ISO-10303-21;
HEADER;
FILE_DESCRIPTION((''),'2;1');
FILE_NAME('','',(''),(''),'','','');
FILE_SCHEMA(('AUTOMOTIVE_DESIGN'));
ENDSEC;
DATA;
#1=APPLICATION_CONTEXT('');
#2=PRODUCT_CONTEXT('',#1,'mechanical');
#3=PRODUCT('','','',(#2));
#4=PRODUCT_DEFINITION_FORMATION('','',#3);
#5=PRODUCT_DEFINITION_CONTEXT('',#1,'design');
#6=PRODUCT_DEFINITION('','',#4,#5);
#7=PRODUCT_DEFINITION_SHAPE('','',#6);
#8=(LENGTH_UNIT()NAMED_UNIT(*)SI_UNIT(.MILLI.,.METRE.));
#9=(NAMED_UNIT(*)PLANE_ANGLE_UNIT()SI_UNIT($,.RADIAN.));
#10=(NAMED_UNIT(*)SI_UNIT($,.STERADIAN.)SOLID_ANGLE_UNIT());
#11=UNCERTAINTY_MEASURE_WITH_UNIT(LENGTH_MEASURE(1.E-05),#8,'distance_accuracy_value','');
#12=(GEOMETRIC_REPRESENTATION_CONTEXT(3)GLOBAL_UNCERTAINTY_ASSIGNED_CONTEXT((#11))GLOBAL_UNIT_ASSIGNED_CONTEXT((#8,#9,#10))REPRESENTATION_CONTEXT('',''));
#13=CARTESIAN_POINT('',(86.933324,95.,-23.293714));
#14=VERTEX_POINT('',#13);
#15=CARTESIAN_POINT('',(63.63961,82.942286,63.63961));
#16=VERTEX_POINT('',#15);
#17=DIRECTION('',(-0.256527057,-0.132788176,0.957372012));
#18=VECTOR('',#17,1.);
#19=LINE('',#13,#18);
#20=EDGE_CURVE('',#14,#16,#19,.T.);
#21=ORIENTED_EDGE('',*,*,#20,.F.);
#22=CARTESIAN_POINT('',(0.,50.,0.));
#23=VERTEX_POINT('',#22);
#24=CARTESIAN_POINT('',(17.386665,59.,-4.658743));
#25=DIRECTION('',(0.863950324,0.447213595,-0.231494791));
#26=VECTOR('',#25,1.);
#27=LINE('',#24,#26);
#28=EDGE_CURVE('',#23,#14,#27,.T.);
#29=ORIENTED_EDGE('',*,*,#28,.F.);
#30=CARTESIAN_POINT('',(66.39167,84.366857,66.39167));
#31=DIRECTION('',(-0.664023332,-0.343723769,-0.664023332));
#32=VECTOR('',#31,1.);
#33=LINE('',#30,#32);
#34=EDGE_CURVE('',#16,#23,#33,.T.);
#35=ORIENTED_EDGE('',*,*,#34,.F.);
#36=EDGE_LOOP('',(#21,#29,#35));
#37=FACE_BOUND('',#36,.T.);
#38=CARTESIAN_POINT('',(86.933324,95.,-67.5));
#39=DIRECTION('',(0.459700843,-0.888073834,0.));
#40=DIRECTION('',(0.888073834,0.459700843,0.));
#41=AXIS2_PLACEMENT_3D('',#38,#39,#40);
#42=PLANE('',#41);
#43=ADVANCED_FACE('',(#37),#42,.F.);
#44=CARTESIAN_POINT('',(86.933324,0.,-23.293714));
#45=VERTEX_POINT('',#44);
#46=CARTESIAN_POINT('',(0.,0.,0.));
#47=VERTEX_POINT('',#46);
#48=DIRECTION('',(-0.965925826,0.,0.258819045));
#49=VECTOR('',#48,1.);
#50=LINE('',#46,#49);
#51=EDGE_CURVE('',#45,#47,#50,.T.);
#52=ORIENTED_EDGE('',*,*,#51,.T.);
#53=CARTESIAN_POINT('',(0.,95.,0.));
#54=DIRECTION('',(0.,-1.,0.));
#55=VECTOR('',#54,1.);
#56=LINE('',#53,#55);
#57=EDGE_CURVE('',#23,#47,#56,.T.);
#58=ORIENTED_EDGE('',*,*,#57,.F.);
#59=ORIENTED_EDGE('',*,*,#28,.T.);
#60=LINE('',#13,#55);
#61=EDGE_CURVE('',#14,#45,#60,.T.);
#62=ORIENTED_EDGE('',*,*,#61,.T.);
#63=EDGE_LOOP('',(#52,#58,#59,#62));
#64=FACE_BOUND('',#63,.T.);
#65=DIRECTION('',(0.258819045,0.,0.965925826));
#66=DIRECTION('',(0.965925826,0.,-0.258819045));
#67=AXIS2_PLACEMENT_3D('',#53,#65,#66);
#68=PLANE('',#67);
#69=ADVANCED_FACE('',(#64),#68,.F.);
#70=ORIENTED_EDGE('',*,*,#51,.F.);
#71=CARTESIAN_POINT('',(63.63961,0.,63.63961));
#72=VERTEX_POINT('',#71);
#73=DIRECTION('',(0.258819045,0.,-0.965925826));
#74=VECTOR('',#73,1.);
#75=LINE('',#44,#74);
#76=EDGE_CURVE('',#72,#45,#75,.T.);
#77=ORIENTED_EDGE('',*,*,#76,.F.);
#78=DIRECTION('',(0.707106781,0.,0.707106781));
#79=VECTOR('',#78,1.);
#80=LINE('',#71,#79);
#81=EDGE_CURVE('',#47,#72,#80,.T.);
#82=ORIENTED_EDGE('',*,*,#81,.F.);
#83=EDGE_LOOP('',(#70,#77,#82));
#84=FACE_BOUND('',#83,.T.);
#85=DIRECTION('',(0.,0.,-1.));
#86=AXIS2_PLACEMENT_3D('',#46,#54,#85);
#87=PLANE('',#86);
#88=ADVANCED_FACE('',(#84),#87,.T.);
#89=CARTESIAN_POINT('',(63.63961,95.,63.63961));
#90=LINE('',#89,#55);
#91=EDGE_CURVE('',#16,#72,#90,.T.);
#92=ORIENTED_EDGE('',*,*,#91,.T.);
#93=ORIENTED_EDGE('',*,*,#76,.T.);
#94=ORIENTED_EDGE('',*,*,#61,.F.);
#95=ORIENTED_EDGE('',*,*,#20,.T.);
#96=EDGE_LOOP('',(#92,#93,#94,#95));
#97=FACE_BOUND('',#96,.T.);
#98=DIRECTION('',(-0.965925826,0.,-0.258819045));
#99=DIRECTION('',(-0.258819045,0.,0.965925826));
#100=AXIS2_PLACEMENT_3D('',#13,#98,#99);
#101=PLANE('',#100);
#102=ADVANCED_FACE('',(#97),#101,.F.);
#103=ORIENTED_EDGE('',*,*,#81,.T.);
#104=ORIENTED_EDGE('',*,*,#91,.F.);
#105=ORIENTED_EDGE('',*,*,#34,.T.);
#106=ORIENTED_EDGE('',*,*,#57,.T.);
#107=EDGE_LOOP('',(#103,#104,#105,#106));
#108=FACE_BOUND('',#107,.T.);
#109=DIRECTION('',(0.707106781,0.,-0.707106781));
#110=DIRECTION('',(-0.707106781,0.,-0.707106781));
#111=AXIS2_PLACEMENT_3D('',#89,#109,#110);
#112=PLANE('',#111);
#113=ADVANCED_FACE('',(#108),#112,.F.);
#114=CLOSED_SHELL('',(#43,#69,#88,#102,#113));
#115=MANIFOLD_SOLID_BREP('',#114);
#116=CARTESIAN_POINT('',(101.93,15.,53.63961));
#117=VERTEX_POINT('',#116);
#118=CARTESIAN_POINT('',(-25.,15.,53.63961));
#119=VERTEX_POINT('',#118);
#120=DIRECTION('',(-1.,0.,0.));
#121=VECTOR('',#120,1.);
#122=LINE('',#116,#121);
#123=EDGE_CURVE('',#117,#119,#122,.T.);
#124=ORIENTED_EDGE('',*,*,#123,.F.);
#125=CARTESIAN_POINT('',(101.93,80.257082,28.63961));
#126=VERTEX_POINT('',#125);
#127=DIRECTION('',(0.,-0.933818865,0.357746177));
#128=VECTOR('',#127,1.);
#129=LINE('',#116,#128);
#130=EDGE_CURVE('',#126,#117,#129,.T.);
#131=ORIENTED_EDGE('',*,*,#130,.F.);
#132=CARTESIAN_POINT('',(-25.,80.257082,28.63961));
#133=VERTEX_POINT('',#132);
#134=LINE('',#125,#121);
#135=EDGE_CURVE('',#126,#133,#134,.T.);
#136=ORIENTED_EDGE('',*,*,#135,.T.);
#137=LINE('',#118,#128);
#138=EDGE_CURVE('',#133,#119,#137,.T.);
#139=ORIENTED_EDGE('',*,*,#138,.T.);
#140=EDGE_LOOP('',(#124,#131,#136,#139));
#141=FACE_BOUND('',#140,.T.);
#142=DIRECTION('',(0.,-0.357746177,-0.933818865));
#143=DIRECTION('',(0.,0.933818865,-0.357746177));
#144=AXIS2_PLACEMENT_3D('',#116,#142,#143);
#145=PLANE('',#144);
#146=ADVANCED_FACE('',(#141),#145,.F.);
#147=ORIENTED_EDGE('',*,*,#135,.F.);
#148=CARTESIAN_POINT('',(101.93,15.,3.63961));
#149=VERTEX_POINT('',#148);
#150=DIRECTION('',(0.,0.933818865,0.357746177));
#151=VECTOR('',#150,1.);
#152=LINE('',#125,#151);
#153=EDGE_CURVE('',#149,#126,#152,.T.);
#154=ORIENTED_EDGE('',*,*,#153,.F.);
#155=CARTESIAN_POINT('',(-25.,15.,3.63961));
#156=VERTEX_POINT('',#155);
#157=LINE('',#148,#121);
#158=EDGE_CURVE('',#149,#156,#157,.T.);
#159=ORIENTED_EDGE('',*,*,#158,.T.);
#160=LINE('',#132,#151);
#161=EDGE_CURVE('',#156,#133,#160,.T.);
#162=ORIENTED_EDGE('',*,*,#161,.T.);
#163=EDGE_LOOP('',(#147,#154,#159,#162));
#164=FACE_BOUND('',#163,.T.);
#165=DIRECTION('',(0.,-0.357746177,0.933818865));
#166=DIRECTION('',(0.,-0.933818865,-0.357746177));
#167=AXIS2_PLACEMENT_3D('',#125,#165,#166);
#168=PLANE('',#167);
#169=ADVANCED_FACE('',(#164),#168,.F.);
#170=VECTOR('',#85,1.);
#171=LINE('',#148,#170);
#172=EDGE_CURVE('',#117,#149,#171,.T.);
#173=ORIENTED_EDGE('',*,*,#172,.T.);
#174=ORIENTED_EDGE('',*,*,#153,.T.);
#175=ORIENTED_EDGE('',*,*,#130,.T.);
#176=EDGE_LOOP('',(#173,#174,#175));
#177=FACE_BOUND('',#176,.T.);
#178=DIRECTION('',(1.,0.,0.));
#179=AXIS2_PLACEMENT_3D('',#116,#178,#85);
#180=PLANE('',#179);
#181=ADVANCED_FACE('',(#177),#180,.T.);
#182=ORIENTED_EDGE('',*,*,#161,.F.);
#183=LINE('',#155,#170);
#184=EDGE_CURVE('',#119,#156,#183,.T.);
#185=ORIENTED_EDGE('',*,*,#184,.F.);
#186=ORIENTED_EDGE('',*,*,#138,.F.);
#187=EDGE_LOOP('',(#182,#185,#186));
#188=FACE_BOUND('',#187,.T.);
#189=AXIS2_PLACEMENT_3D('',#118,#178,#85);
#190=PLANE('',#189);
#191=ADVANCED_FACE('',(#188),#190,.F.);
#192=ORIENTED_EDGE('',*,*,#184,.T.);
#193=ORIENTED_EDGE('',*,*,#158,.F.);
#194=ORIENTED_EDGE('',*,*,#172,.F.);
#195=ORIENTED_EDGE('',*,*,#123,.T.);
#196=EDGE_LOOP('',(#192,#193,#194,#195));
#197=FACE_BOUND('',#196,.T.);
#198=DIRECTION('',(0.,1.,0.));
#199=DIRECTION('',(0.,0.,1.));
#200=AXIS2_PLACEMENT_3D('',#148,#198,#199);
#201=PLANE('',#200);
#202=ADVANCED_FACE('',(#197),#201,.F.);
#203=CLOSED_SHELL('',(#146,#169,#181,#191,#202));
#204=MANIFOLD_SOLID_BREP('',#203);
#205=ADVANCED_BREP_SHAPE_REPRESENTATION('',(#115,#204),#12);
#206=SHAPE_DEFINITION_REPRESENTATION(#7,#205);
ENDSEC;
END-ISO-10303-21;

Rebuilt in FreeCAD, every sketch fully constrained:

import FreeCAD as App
import Part
import Sketcher
from FreeCAD import Vector
Q = App.Units.Quantity


def add_polygon(sketch, points):
    """Adds a closed chain of lines whose ends are joined by coincident constraints."""
    first, n = sketch.GeometryCount, len(points)
    for a, b in zip(points, points[1:] + points[:1]):
        sketch.addGeometry(Part.LineSegment(App.Vector(*a, 0), App.Vector(*b, 0)), False)
    for i in range(n):
        sketch.addConstraint(Sketcher.Constraint("Coincident", first + i, 2, first + (i + 1) % n, 1))

doc = App.newDocument("Part")
params = doc.addObject("Spreadsheet::Sheet", "Params")
for row, (alias, value) in enumerate([
    ("sketch1_length", "90 mm"),
    ("pad1_length", "95 mm"),
    ("sketch2_height", "45 mm"),
    ("pocket1_length", "135 mm"),
    ("sketch3_height", "50 mm"),
    ("pad2_length", "101.93 mm"),
    ("pad2_length2", "25 mm"),
], start=1):
    params.set(f"A{row}", alias)
    params.set(f"B{row}", "=" + value)
    params.setAlias(f"B{row}", alias)

body = doc.addObject("PartDesign::Body", "Body")

# Sketch on XZ plane
sketch1 = body.newObject("Sketcher::SketchObject", "Sketch")
sketch1.AttachmentSupport = (doc.getObject("XZ_Plane"), [""])
sketch1.MapMode = "FlatFace"
add_polygon(sketch1, [(86.933324, -23.293714), (0, 0), (63.63961, 63.63961)])  # lines 0-2
sketch1.addConstraint([
    Sketcher.Constraint("Coincident", 0, 2, -1, 1),
    Sketcher.Constraint("Equal", 0, 1),
    Sketcher.Constraint("Equal", 1, 2),
    Sketcher.Constraint("Angle", 0, Q("165 deg")),
    Sketcher.Constraint("Distance", 0, Q("90 mm")),
])
sketch1.setExpression("Constraints[7]", "Params.sketch1_length")
pad1 = body.newObject("PartDesign::Pad", "Pad")
pad1.Profile = sketch1
pad1.setExpression("Length", "Params.pad1_length")
pad1.Reversed = True

# Sketch on XY plane
sketch2 = body.newObject("Sketcher::SketchObject", "Sketch001")
sketch2.AttachmentSupport = (doc.getObject("XY_Plane"), [""])
sketch2.MapMode = "FlatFace"
add_polygon(sketch2, [(0, 50), (86.933324, 95), (0, 95)])  # lines 0-2
sketch2.addConstraint([
    Sketcher.Constraint("Horizontal", 1),
    Sketcher.Constraint("Vertical", 2),
    Sketcher.Constraint("PointOnObject", 1, 2, -2),
    Sketcher.Constraint("DistanceY", 2, 2, 2, 1, Q("45 mm")),
    Sketcher.Constraint("DistanceY", -1, 1, 0, 2, Q("95 mm")),
    Sketcher.Constraint("Distance", 0, Q("97.889749 mm")),
])
sketch2.setExpression("Constraints[6]", "Params.sketch2_height")
pocket1 = body.newObject("PartDesign::Pocket", "Pocket")
pocket1.Profile = sketch2
pocket1.setExpression("Length", "Params.pocket1_length")
pocket1.Midplane = True
body2 = doc.addObject("PartDesign::Body", "Body001")

# Sketch on YZ plane
sketch3 = body2.newObject("Sketcher::SketchObject", "Sketch002")
sketch3.AttachmentSupport = (doc.getObject("YZ_Plane001"), [""])
sketch3.MapMode = "FlatFace"
add_polygon(sketch3, [(15, 3.63961), (80.257082, 28.63961), (15, 53.63961)])  # lines 0-2
sketch3.addConstraint([
    Sketcher.Constraint("Vertical", 2),
    Sketcher.Constraint("Equal", 0, 1),
    Sketcher.Constraint("DistanceY", 2, 2, 2, 1, Q("50 mm")),
    Sketcher.Constraint("DistanceX", -1, 1, 1, 2, Q("15 mm")),
    Sketcher.Constraint("Distance", 0, Q("69.881949 mm")),
    Sketcher.Constraint("DistanceY", -1, 1, 0, 2, Q("28.63961 mm")),
])
sketch3.setExpression("Constraints[5]", "Params.sketch3_height")
pad2 = body2.newObject("PartDesign::Pad", "Pad001")
pad2.Profile = sketch3
pad2.Type = "TwoLengths"
pad2.setExpression("Length", "Params.pad2_length")
pad2.setExpression("Length2", "Params.pad2_length2")

doc.recompute()
